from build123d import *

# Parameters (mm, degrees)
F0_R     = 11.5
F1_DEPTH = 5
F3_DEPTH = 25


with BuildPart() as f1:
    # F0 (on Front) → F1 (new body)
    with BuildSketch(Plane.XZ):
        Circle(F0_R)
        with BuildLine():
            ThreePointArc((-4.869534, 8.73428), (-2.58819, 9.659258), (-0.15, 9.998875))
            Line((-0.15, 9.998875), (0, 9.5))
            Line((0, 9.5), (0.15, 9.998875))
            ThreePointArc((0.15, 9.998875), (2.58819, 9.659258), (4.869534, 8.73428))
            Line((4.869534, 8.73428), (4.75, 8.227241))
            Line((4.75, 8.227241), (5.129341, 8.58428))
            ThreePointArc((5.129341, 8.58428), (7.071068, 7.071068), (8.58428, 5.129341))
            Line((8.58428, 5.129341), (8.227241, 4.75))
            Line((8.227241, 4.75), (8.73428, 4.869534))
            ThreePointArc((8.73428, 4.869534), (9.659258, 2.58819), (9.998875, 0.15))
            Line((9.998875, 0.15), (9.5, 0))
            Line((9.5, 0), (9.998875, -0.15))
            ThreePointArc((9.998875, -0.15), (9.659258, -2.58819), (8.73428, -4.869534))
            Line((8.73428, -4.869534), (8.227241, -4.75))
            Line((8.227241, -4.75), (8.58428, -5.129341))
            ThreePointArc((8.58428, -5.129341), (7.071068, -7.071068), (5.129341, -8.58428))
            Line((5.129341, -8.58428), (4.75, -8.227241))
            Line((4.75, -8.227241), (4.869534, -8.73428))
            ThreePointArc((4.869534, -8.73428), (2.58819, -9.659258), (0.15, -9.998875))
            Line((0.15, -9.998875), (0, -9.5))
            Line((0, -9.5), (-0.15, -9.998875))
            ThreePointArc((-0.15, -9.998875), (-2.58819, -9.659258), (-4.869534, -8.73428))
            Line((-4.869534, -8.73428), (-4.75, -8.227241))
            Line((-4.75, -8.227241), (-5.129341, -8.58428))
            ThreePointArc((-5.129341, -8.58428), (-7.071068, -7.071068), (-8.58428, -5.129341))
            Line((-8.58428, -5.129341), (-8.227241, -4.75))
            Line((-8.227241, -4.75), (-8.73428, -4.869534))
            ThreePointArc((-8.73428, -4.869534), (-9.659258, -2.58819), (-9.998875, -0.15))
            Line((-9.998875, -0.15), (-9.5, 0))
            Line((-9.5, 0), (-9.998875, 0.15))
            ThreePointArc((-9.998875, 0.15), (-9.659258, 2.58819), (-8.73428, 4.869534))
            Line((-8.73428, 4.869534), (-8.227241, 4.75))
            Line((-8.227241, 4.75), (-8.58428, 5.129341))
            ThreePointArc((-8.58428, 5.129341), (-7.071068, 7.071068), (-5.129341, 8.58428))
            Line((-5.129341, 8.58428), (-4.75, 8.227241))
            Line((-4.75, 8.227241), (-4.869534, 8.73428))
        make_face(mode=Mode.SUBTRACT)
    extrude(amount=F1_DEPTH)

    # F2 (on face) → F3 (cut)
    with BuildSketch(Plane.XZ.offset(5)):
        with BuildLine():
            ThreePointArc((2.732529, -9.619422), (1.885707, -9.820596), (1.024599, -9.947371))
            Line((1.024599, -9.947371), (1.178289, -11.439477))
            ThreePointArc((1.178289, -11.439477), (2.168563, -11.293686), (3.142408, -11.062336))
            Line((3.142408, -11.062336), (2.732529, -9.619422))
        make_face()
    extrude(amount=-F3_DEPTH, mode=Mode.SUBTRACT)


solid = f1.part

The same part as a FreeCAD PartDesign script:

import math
import FreeCAD as App
import Part
import Sketcher

V = App.Vector

doc = App.newDocument("Part")
body = doc.addObject("PartDesign::Body", "Body")

# Sketch on XZ plane
sketch1 = doc.addObject("Sketcher::SketchObject", "Sketch")
body.addObject(sketch1)
sketch1.AttachmentSupport = (doc.XZ_Plane, [""])
sketch1.MapMode = "FlatFace"
sketch1.addGeometry([
    Part.Circle(V(0, 0, 0), V(0, 0, 1), 11.5),  # 0
    Part.LineSegment(V(-4.75, 8.227241, 0), V(-4.869534, 8.73428, 0)),  # 1
    Part.ArcOfCircle(Part.Circle(V(0.000005, -0.00002, 0), V(0, 0, 1), 10.00002), math.radians(90.859493), math.radians(119.140499)),  # 2
    Part.LineSegment(V(-0.15, 9.998875, 0), V(0, 9.5, 0)),  # 3
    Part.LineSegment(V(0, 9.5, 0), V(0.15, 9.998875, 0)),  # 4
    Part.ArcOfCircle(Part.Circle(V(-0.000005, -0.00002, 0), V(0, 0, 1), 10.00002), math.radians(60.859501), math.radians(89.140507)),  # 5
    Part.LineSegment(V(4.869534, 8.73428, 0), V(4.75, 8.227241, 0)),  # 6
    Part.LineSegment(V(4.75, 8.227241, 0), V(5.129341, 8.58428, 0)),  # 7
    Part.ArcOfCircle(Part.Circle(V(0.000004, 0.000004, 0), V(0, 0, 1), 9.999995), math.radians(30.85946), math.radians(59.14054)),  # 8
    Part.LineSegment(V(8.58428, 5.129341, 0), V(8.227241, 4.75, 0)),  # 9
    Part.LineSegment(V(8.227241, 4.75, 0), V(8.73428, 4.869534, 0)),  # 10
    Part.ArcOfCircle(Part.Circle(V(-0.00002, -0.000005, 0), V(0, 0, 1), 10.00002), math.radians(0.859493), math.radians(29.140499)),  # 11
    Part.LineSegment(V(9.998875, 0.15, 0), V(9.5, 0, 0)),  # 12
    Part.LineSegment(V(9.5, 0, 0), V(9.998875, -0.15, 0)),  # 13
    Part.ArcOfCircle(Part.Circle(V(-0.00002, 0.000005, 0), V(0, 0, 1), 10.00002), math.radians(-29.140499), math.radians(-0.859493)),  # 14
    Part.LineSegment(V(8.73428, -4.869534, 0), V(8.227241, -4.75, 0)),  # 15
    Part.LineSegment(V(8.227241, -4.75, 0), V(8.58428, -5.129341, 0)),  # 16
    Part.ArcOfCircle(Part.Circle(V(0.000004, -0.000004, 0), V(0, 0, 1), 9.999995), math.radians(-59.14054), math.radians(-30.85946)),  # 17
    Part.LineSegment(V(5.129341, -8.58428, 0), V(4.75, -8.227241, 0)),  # 18
    Part.LineSegment(V(4.75, -8.227241, 0), V(4.869534, -8.73428, 0)),  # 19
    Part.ArcOfCircle(Part.Circle(V(-0.000005, 0.00002, 0), V(0, 0, 1), 10.00002), math.radians(-89.140507), math.radians(-60.859501)),  # 20
    Part.LineSegment(V(0.15, -9.998875, 0), V(0, -9.5, 0)),  # 21
    Part.LineSegment(V(0, -9.5, 0), V(-0.15, -9.998875, 0)),  # 22
    Part.ArcOfCircle(Part.Circle(V(0.000005, 0.00002, 0), V(0, 0, 1), 10.00002), math.radians(-119.140499), math.radians(-90.859493)),  # 23
    Part.LineSegment(V(-4.869534, -8.73428, 0), V(-4.75, -8.227241, 0)),  # 24
    Part.LineSegment(V(-4.75, -8.227241, 0), V(-5.129341, -8.58428, 0)),  # 25
    Part.ArcOfCircle(Part.Circle(V(-0.000004, -0.000004, 0), V(0, 0, 1), 9.999995), math.radians(-149.14054), math.radians(-120.85946)),  # 26
    Part.LineSegment(V(-8.58428, -5.129341, 0), V(-8.227241, -4.75, 0)),  # 27
    Part.LineSegment(V(-8.227241, -4.75, 0), V(-8.73428, -4.869534, 0)),  # 28
    Part.ArcOfCircle(Part.Circle(V(0.00002, 0.000005, 0), V(0, 0, 1), 10.00002), math.radians(-179.140507), math.radians(-150.859501)),  # 29
    Part.LineSegment(V(-9.998875, -0.15, 0), V(-9.5, 0, 0)),  # 30
    Part.LineSegment(V(-9.5, 0, 0), V(-9.998875, 0.15, 0)),  # 31
    Part.ArcOfCircle(Part.Circle(V(0.00002, -0.000005, 0), V(0, 0, 1), 10.00002), math.radians(150.859501), math.radians(179.140507)),  # 32
    Part.LineSegment(V(-8.73428, 4.869534, 0), V(-8.227241, 4.75, 0)),  # 33
    Part.LineSegment(V(-8.227241, 4.75, 0), V(-8.58428, 5.129341, 0)),  # 34
    Part.ArcOfCircle(Part.Circle(V(-0.000004, 0.000004, 0), V(0, 0, 1), 9.999995), math.radians(120.85946), math.radians(149.14054)),  # 35
    Part.LineSegment(V(-5.129341, 8.58428, 0), V(-4.75, 8.227241, 0)),  # 36
], False)
sketch1.addConstraint([
    Sketcher.Constraint("Coincident", 1, 2, 2, 2),
    Sketcher.Constraint("Coincident", 2, 1, 3, 1),
    Sketcher.Constraint("Coincident", 3, 2, 4, 1),
    Sketcher.Constraint("Coincident", 4, 2, 5, 2),
    Sketcher.Constraint("Coincident", 5, 1, 6, 1),
    Sketcher.Constraint("Coincident", 6, 2, 7, 1),
    Sketcher.Constraint("Coincident", 7, 2, 8, 2),
    Sketcher.Constraint("Coincident", 8, 1, 9, 1),
    Sketcher.Constraint("Coincident", 9, 2, 10, 1),
    Sketcher.Constraint("Coincident", 10, 2, 11, 2),
    Sketcher.Constraint("Coincident", 11, 1, 12, 1),
    Sketcher.Constraint("Coincident", 12, 2, 13, 1),
    Sketcher.Constraint("Coincident", 13, 2, 14, 2),
    Sketcher.Constraint("Coincident", 14, 1, 15, 1),
    Sketcher.Constraint("Coincident", 15, 2, 16, 1),
    Sketcher.Constraint("Coincident", 16, 2, 17, 2),
    Sketcher.Constraint("Coincident", 17, 1, 18, 1),
    Sketcher.Constraint("Coincident", 18, 2, 19, 1),
    Sketcher.Constraint("Coincident", 19, 2, 20, 2),
    Sketcher.Constraint("Coincident", 20, 1, 21, 1),
    Sketcher.Constraint("Coincident", 21, 2, 22, 1),
    Sketcher.Constraint("Coincident", 22, 2, 23, 2),
    Sketcher.Constraint("Coincident", 23, 1, 24, 1),
    Sketcher.Constraint("Coincident", 24, 2, 25, 1),
    Sketcher.Constraint("Coincident", 25, 2, 26, 2),
    Sketcher.Constraint("Coincident", 26, 1, 27, 1),
    Sketcher.Constraint("Coincident", 27, 2, 28, 1),
    Sketcher.Constraint("Coincident", 28, 2, 29, 2),
    Sketcher.Constraint("Coincident", 29, 1, 30, 1),
    Sketcher.Constraint("Coincident", 30, 2, 31, 1),
    Sketcher.Constraint("Coincident", 31, 2, 32, 2),
    Sketcher.Constraint("Coincident", 32, 1, 33, 1),
    Sketcher.Constraint("Coincident", 33, 2, 34, 1),
    Sketcher.Constraint("Coincident", 34, 2, 35, 2),
    Sketcher.Constraint("Coincident", 35, 1, 36, 1),
    Sketcher.Constraint("Coincident", 36, 2, 1, 1),
    Sketcher.Constraint("Coincident", 0, 3, -1, 1),
    Sketcher.Constraint("Coincident", 8, 3, -1, 1),
    Sketcher.Constraint("Coincident", 17, 3, -1, 1),
    Sketcher.Constraint("Coincident", 26, 3, -1, 1),
    Sketcher.Constraint("Coincident", 35, 3, -1, 1),
    Sketcher.Constraint("Coincident", 5, 3, 2, 3),
    Sketcher.Constraint("Coincident", 14, 3, 11, 3),
    Sketcher.Constraint("Coincident", 23, 3, 20, 3),
    Sketcher.Constraint("Coincident", 32, 3, 29, 3),
    Sketcher.Constraint("Equal", 2, 5),
    Sketcher.Constraint("Equal", 5, 11),
    Sketcher.Constraint("Equal", 11, 14),
    Sketcher.Constraint("Equal", 8, 17),
    Sketcher.Constraint("Equal", 14, 20),
    Sketcher.Constraint("Equal", 20, 23),
    Sketcher.Constraint("Equal", 17, 26),
    Sketcher.Constraint("Equal", 23, 29),
    Sketcher.Constraint("Equal", 29, 32),
    Sketcher.Constraint("Equal", 26, 35),
    Sketcher.Constraint("Symmetric", 2, 3, 20, 3, -1, 1),
    Sketcher.Constraint("Symmetric", 11, 3, 29, 3, -1, 1),
    Sketcher.Constraint("Symmetric", 3, 2, 21, 2, -1, 1),
    Sketcher.Constraint("Symmetric", 6, 2, 24, 2, -1, 1),
    Sketcher.Constraint("Symmetric", 9, 2, 27, 2, -1, 1),
    Sketcher.Constraint("Symmetric", 12, 2, 30, 2, -1, 1),
    Sketcher.Constraint("Symmetric", 15, 2, 33, 2, -1, 1),
    Sketcher.Constraint("Symmetric", 18, 2, 36, 2, -1, 1),
    Sketcher.Constraint("Symmetric", 2, 1, 4, 2, -2),
    Sketcher.Constraint("Symmetric", 18, 2, 24, 2, -2),
    Sketcher.Constraint("Symmetric", 15, 2, 27, 2, -2),
    Sketcher.Constraint("Symmetric", 14, 1, 28, 2, -2),
    Sketcher.Constraint("PointOnObject", 3, 2, -2),
    Sketcher.Constraint("PointOnObject", 12, 2, -1),
    Sketcher.Constraint("Perpendicular", 1, 10),
    Sketcher.Constraint("Perpendicular", 3, 12),
    Sketcher.Constraint("Perpendicular", 4, 13),
    Sketcher.Constraint("Perpendicular", 6, 15),
    Sketcher.Constraint("Perpendicular", 7, 16),
    Sketcher.Constraint("Perpendicular", 9, 18),
    Sketcher.Constraint("Perpendicular", 10, 19),
    Sketcher.Constraint("Perpendicular", 12, 21),
    Sketcher.Constraint("Perpendicular", 13, 22),
    Sketcher.Constraint("Perpendicular", 15, 24),
    Sketcher.Constraint("Perpendicular", 16, 25),
    Sketcher.Constraint("Perpendicular", 18, 27),
    Sketcher.Constraint("Perpendicular", 19, 28),
    Sketcher.Constraint("Perpendicular", 21, 30),
    Sketcher.Constraint("Perpendicular", 22, 31),
    Sketcher.Constraint("Perpendicular", 24, 33),
    Sketcher.Constraint("Perpendicular", 25, 34),
    Sketcher.Constraint("Perpendicular", 27, 36),
    Sketcher.Constraint("Horizontal", 17, 1, 25, 2),
    Sketcher.Constraint("Equal", 1, 3),
    Sketcher.Constraint("Equal", 6, 7),
    Sketcher.Constraint("Equal", 7, 9),
    Sketcher.Constraint("Equal", 9, 10),
    Sketcher.Constraint("Equal", 10, 12),
    Sketcher.Constraint("Diameter", 0, 23.0),
    Sketcher.Constraint("DistanceY", -1, 1, 3, 2, 9.5),
    Sketcher.Constraint("DistanceX", -1, 1, 12, 2, 9.5),
    Sketcher.Constraint("DistanceX", 2, 1, 4, 2, 0.3),
    Sketcher.Constraint("DistanceX", 4, 2, 6, 2, 4.6),
    Sketcher.Constraint("Radius", 2, 10.00002),
    Sketcher.Constraint("DistanceY", 7, 2, 5, 1, 0.15),
    Sketcher.Constraint("Radius", 8, 9.999995),
    Sketcher.Constraint("DistanceY", 8, 1, 6, 2, 3.0979),
])
pad1 = doc.addObject("PartDesign::Pad", "Pad")
body.addObject(pad1)
pad1.Profile = sketch1
pad1.Length = 5

# Sketch on XZ plane
sketch2 = doc.addObject("Sketcher::SketchObject", "Sketch001")
body.addObject(sketch2)
sketch2.AttachmentSupport = (doc.XZ_Plane, [""])
sketch2.MapMode = "FlatFace"
sketch2.AttachmentOffset = App.Placement(V(0, 0, 5), App.Rotation())
sketch2.addGeometry([
    Part.ArcOfCircle(Part.Circle(V(0, 0, 0), V(0, 0, 1), 10), math.radians(-84.12), math.radians(-74.14)),
    Part.LineSegment(V(1, -9.9, 0), V(1.2, -11.4, 0)),
    Part.ArcOfCircle(Part.Circle(V(0, 0, 0), V(0, 0, 1), 11.5), math.radians(-84.12), math.radians(-74.14)),
    Part.LineSegment(V(3.1, -11.1, 0), V(2.7, -9.6, 0)),
], False)
sketch2.addConstraint([
    Sketcher.Constraint("Coincident", 0, 1, 1, 1),
    Sketcher.Constraint("Coincident", 1, 2, 2, 1),
    Sketcher.Constraint("Coincident", 2, 2, 3, 1),
    Sketcher.Constraint("Coincident", 3, 2, 0, 2),
    Sketcher.Constraint("Equal", 1, 3),
    Sketcher.Constraint("Distance", 1, 1.5),
    Sketcher.Constraint("Radius", 0, 9.99996),
    Sketcher.Constraint("Radius", 2, 11.499925),
    Sketcher.Constraint("DistanceX", -1, 1, 0, 1, 1.024599),
    Sketcher.Constraint("DistanceX", 0, 3, 2, 2, 3.1424),
    Sketcher.Constraint("DistanceY", 0, 1, -1, 1, 9.947371),
    Sketcher.Constraint("DistanceX", -1, 1, 1, 2, 1.178289),
    Sketcher.Constraint("DistanceX", -1, 1, 2, 2, 3.142408),
    Sketcher.Constraint("DistanceX", -1, 1, 3, 2, 2.732529),
])
pocket1 = doc.addObject("PartDesign::Pocket", "Pocket")
body.addObject(pocket1)
pocket1.Profile = sketch2
pocket1.Length = 25

doc.recompute()
